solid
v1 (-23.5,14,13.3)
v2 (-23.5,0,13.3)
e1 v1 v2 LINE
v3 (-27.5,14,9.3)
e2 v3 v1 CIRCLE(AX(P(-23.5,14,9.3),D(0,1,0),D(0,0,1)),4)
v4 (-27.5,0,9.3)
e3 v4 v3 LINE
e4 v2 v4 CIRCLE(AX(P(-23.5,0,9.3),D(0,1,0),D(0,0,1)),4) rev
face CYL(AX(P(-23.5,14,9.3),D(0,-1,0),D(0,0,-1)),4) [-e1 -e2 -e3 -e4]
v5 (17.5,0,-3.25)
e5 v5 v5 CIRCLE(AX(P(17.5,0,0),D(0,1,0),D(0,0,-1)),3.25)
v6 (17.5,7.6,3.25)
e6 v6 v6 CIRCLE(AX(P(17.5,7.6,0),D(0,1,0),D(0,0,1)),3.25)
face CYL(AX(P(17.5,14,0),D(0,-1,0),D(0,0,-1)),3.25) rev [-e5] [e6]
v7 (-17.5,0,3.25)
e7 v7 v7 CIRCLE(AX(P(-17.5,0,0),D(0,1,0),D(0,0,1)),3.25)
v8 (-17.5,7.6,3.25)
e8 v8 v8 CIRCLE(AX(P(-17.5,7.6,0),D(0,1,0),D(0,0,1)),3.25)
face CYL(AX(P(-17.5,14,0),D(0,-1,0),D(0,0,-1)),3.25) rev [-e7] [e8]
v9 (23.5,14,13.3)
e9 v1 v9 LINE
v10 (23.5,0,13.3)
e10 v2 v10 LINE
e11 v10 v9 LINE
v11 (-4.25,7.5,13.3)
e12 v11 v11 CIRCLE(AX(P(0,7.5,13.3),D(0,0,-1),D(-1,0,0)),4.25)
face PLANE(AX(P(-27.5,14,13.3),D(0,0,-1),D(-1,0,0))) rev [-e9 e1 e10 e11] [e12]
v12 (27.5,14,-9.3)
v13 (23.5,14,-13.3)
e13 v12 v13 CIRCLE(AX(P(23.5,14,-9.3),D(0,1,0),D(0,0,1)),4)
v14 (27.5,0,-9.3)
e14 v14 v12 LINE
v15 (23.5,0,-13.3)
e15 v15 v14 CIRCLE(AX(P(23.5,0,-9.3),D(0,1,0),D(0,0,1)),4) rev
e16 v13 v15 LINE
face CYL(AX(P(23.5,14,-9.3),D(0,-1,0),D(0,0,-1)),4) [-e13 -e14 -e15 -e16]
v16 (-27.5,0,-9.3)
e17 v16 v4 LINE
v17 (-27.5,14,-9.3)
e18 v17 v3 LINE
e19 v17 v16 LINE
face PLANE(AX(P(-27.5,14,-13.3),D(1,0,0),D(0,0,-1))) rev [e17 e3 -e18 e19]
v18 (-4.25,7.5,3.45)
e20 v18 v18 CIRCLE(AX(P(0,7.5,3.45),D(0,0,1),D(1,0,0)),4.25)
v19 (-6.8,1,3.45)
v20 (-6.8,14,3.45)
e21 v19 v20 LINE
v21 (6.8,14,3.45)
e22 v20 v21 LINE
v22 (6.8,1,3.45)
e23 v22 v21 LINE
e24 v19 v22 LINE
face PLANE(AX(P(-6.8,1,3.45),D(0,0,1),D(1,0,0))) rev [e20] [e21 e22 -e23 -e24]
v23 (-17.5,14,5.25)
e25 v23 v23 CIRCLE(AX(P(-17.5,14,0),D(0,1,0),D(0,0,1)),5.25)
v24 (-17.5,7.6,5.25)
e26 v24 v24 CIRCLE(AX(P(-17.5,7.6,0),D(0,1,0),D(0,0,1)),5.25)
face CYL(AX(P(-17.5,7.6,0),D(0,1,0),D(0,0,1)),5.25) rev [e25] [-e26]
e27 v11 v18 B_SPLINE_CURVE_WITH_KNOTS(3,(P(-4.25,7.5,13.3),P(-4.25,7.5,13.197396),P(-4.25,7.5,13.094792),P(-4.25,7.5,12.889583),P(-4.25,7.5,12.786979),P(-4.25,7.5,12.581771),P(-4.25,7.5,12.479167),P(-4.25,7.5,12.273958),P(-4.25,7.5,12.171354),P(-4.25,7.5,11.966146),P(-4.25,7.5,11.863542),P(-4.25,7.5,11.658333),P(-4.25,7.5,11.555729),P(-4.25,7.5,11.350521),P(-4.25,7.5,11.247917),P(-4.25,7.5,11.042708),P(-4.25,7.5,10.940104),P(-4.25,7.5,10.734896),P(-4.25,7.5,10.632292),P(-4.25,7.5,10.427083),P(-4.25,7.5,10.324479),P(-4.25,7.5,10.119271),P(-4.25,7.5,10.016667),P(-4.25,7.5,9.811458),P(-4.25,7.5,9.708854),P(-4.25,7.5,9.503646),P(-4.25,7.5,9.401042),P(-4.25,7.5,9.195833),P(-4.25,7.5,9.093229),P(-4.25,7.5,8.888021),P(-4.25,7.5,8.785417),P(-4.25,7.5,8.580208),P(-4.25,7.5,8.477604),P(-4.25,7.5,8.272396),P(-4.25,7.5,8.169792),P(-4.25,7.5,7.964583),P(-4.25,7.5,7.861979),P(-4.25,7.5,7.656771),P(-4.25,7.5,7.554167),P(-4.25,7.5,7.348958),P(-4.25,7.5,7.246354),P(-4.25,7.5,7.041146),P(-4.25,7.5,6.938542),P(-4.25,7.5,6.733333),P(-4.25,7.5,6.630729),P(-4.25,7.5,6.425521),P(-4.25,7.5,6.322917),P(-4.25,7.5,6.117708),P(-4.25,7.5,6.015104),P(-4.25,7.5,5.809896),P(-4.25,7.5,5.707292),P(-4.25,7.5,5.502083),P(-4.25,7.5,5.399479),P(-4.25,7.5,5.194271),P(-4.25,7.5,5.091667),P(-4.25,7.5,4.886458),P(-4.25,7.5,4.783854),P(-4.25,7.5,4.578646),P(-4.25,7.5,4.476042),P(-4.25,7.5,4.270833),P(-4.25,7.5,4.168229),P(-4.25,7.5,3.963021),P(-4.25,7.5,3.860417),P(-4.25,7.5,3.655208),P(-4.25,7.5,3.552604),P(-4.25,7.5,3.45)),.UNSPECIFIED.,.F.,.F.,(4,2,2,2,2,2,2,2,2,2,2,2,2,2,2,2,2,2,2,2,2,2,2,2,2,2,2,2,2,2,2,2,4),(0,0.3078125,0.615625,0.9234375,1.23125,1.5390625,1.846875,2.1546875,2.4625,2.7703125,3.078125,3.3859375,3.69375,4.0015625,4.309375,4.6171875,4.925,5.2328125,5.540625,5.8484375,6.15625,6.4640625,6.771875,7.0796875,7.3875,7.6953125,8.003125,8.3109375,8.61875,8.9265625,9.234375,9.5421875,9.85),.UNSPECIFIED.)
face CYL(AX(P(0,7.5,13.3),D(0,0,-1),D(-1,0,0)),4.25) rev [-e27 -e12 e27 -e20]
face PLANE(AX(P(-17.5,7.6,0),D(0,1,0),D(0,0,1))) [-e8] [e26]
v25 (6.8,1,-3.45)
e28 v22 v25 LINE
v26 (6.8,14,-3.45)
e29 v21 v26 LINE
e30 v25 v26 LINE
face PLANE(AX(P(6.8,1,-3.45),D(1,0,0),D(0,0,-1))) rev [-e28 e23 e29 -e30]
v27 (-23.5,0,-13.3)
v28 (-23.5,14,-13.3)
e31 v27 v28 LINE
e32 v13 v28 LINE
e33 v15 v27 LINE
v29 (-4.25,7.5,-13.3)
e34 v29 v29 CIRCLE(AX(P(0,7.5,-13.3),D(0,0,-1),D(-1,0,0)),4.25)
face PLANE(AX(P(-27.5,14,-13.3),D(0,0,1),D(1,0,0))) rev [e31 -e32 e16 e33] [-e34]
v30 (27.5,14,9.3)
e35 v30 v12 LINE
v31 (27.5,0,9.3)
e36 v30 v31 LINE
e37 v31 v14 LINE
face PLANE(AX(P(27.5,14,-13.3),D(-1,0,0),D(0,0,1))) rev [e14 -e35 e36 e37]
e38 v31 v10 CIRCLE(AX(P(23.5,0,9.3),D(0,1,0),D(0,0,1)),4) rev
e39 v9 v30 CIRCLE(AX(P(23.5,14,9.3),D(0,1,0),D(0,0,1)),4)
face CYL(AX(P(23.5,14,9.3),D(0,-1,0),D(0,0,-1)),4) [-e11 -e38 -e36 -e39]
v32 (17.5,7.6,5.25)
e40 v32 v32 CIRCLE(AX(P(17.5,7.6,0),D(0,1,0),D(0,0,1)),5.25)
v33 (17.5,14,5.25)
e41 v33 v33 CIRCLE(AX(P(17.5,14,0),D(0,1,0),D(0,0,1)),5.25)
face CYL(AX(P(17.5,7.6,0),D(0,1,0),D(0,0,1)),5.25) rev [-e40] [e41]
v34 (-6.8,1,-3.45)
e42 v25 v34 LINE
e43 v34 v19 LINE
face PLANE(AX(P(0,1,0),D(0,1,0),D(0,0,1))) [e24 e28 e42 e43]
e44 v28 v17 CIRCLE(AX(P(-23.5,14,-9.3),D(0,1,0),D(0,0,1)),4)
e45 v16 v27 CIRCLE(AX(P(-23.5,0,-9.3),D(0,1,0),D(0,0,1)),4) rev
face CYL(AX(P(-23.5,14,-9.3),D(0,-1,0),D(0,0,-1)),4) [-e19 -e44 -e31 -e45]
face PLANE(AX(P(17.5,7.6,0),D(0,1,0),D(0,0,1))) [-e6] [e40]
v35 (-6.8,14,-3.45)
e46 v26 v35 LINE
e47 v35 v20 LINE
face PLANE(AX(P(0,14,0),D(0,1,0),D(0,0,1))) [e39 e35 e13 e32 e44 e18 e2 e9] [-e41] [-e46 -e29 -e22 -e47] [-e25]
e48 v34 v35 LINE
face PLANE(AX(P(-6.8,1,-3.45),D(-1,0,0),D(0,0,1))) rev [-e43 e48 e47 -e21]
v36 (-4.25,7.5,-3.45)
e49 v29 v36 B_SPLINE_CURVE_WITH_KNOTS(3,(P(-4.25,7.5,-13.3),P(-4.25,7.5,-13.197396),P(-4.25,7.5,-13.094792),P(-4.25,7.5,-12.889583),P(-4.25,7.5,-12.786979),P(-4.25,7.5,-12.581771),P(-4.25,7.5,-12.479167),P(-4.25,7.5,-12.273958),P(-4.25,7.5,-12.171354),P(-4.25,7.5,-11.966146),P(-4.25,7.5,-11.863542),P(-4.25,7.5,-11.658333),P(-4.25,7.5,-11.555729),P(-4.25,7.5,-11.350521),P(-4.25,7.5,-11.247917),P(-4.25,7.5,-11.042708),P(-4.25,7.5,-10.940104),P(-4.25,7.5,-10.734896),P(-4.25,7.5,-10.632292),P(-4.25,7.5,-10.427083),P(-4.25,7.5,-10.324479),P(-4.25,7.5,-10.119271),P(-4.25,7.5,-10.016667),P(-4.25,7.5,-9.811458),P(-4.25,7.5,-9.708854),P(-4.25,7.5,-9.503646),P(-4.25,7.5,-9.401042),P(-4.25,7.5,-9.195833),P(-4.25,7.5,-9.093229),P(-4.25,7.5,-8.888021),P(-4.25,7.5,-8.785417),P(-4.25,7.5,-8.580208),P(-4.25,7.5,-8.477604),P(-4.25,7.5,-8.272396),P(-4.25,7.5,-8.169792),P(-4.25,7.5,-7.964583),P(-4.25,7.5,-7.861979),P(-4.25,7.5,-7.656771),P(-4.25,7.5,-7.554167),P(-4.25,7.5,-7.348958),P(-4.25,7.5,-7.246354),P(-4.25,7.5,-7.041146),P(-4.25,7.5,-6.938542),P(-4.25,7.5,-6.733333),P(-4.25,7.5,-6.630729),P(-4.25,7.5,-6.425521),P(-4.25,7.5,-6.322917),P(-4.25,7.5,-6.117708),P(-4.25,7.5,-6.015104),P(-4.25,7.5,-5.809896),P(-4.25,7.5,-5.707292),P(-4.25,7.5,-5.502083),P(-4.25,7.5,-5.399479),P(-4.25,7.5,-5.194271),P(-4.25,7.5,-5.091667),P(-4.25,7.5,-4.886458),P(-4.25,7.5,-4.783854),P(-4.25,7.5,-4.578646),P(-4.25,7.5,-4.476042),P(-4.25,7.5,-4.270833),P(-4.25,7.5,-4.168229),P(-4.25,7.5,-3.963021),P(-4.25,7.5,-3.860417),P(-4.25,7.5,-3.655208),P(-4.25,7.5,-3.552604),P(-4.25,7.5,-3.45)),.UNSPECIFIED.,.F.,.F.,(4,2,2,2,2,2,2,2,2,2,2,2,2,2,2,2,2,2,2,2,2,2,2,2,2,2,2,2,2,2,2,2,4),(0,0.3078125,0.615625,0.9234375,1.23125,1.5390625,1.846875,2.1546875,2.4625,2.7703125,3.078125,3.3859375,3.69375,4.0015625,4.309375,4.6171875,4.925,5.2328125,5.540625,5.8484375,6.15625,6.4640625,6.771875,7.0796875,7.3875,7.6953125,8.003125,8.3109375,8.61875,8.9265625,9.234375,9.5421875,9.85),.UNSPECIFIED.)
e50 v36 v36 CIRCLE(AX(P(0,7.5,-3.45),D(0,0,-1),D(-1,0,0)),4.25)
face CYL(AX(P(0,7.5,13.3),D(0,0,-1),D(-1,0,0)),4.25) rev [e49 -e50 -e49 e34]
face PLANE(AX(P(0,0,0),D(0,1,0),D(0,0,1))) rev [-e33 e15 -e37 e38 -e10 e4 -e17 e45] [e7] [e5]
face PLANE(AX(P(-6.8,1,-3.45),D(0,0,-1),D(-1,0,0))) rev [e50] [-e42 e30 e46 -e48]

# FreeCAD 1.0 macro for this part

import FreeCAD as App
import Part
import Sketcher


def edges_at(feature, points):
    """Names of the edges that pass closest to the given points."""
    edges = feature.Shape.Edges
    near = lambda p: min(range(len(edges)), key=lambda i: edges[i].distToShape(Part.Vertex(*p))[0])
    return sorted({f"Edge{near(p) + 1}" for p in points})


def add_polygon(sketch, points):
    """Adds a closed chain of lines whose ends are joined by coincident constraints."""
    first, n = sketch.GeometryCount, len(points)
    for a, b in zip(points, points[1:] + points[:1]):
        sketch.addGeometry(Part.LineSegment(App.Vector(*a, 0), App.Vector(*b, 0)), False)
    for i in range(n):
        sketch.addConstraint(Sketcher.Constraint("Coincident", first + i, 2, first + (i + 1) % n, 1))

doc = App.newDocument("Part")
body = doc.addObject("PartDesign::Body", "Body")

sketch1 = doc.addObject("Sketcher::SketchObject", "Sketch")
body.addObject(sketch1)
sketch1.AttachmentSupport = (doc.XZ_Plane, [""])
sketch1.MapMode = "FlatFace"
add_polygon(sketch1, [(-27.5, -13.3), (-27.5, 13.3), (27.5, 13.3), (27.5, -13.3)])
sketch1.addGeometry(Part.Circle(App.Vector(-17.5, 0, 0), App.Vector(0, 0, 1), 3.2), False)
sketch1.addGeometry(Part.Circle(App.Vector(17.5, 0, 0), App.Vector(0, 0, 1), 3.2), False)
sketch1.addConstraint([
    Sketcher.Constraint("Vertical", 0),
    Sketcher.Constraint("Horizontal", 1),
    Sketcher.Constraint("Vertical", 2),
    Sketcher.Constraint("Horizontal", 3),
    Sketcher.Constraint("Equal", 4, 5),
    Sketcher.Constraint("Symmetric", 4, 3, 5, 3, -1, 1),
    Sketcher.Constraint("Symmetric", 0, 2, 2, 2, -1, 1),
    Sketcher.Constraint("PointOnObject", 4, 3, -1),
    Sketcher.Constraint("Diameter", 4, 6.5),
    Sketcher.Constraint("DistanceX", 1, 1, 1, 2, 55.0),
    Sketcher.Constraint("DistanceY", 0, 1, 0, 2, 26.6),
    Sketcher.Constraint("DistanceX", 4, 3, 5, 3, 35.0),
])
pad1 = doc.addObject("PartDesign::Pad", "Pad")
body.addObject(pad1)
pad1.Profile = sketch1
pad1.Length = 14
pad1.Reversed = True

sketch2 = doc.addObject("Sketcher::SketchObject", "Sketch001")
body.addObject(sketch2)
sketch2.AttachmentSupport = (doc.XZ_Plane, [""])
sketch2.MapMode = "FlatFace"
sketch2.AttachmentOffset = App.Placement(App.Vector(0, 0, -14), App.Rotation())
add_polygon(sketch2, [(-7, -3), (-7, 3), (7, 3), (7, -3)])
sketch2.addConstraint([
    Sketcher.Constraint("Vertical", 0),
    Sketcher.Constraint("Horizontal", 1),
    Sketcher.Constraint("Vertical", 2),
    Sketcher.Constraint("Horizontal", 3),
    Sketcher.Constraint("Symmetric", 0, 2, 2, 2, -1, 1),
    Sketcher.Constraint("DistanceX", 1, 1, 1, 2, 13.6),
    Sketcher.Constraint("DistanceY", 0, 1, 0, 2, 6.9),
])
pocket1 = doc.addObject("PartDesign::Pocket", "Pocket")
body.addObject(pocket1)
pocket1.Profile = sketch2
pocket1.Length = 13
pocket1.Reversed = True

sketch3 = doc.addObject("Sketcher::SketchObject", "Sketch002")
body.addObject(sketch3)
sketch3.AttachmentSupport = (doc.XY_Plane, [""])
sketch3.MapMode = "FlatFace"
sketch3.AttachmentOffset = App.Placement(App.Vector(0, 0, -13.3), App.Rotation())
sketch3.addGeometry(Part.Circle(App.Vector(0, 7.5, 0), App.Vector(0, 0, 1), 4.2), False)
sketch3.addConstraint([
    Sketcher.Constraint("PointOnObject", 0, 3, -2),
    Sketcher.Constraint("Diameter", 0, 8.5),
    Sketcher.Constraint("DistanceY", -1, 1, 0, 3, 7.5),
])
pocket2 = doc.addObject("PartDesign::Pocket", "Pocket001")
body.addObject(pocket2)
pocket2.Profile = sketch3
pocket2.Type = "ThroughAll"
pocket2.Reversed = True

sketch4 = doc.addObject("Sketcher::SketchObject", "Sketch003")
body.addObject(sketch4)
sketch4.AttachmentSupport = (doc.XZ_Plane, [""])
sketch4.MapMode = "FlatFace"
sketch4.AttachmentOffset = App.Placement(App.Vector(0, 0, -14), App.Rotation())
sketch4.addGeometry([
    Part.Circle(App.Vector(-18, 0, 0), App.Vector(0, 0, 1), 5),
    Part.Circle(App.Vector(18, 0, 0), App.Vector(0, 0, 1), 5),
], False)
sketch4.addConstraint([
    Sketcher.Constraint("Equal", 0, 1),
    Sketcher.Constraint("Symmetric", 0, 3, 1, 3, -1, 1),
    Sketcher.Constraint("PointOnObject", 0, 3, -1),
    Sketcher.Constraint("Diameter", 0, 10.5),
    Sketcher.Constraint("DistanceX", 0, 3, 1, 3, 35.0),
])
pocket3 = doc.addObject("PartDesign::Pocket", "Pocket002")
body.addObject(pocket3)
pocket3.Profile = sketch4
pocket3.Length = 6.4
pocket3.Reversed = True
doc.recompute()

fillet = doc.addObject("PartDesign::Fillet", "Fillet")
body.addObject(fillet)
fillet.Base = (pocket3, edges_at(pocket3, [
    (27.5, 7, 13.3),
    (-27.5, 7, 13.3),
    (-27.5, 7, -13.3),
    (27.5, 7, -13.3),
]))
fillet.Radius = 4

doc.recompute()
